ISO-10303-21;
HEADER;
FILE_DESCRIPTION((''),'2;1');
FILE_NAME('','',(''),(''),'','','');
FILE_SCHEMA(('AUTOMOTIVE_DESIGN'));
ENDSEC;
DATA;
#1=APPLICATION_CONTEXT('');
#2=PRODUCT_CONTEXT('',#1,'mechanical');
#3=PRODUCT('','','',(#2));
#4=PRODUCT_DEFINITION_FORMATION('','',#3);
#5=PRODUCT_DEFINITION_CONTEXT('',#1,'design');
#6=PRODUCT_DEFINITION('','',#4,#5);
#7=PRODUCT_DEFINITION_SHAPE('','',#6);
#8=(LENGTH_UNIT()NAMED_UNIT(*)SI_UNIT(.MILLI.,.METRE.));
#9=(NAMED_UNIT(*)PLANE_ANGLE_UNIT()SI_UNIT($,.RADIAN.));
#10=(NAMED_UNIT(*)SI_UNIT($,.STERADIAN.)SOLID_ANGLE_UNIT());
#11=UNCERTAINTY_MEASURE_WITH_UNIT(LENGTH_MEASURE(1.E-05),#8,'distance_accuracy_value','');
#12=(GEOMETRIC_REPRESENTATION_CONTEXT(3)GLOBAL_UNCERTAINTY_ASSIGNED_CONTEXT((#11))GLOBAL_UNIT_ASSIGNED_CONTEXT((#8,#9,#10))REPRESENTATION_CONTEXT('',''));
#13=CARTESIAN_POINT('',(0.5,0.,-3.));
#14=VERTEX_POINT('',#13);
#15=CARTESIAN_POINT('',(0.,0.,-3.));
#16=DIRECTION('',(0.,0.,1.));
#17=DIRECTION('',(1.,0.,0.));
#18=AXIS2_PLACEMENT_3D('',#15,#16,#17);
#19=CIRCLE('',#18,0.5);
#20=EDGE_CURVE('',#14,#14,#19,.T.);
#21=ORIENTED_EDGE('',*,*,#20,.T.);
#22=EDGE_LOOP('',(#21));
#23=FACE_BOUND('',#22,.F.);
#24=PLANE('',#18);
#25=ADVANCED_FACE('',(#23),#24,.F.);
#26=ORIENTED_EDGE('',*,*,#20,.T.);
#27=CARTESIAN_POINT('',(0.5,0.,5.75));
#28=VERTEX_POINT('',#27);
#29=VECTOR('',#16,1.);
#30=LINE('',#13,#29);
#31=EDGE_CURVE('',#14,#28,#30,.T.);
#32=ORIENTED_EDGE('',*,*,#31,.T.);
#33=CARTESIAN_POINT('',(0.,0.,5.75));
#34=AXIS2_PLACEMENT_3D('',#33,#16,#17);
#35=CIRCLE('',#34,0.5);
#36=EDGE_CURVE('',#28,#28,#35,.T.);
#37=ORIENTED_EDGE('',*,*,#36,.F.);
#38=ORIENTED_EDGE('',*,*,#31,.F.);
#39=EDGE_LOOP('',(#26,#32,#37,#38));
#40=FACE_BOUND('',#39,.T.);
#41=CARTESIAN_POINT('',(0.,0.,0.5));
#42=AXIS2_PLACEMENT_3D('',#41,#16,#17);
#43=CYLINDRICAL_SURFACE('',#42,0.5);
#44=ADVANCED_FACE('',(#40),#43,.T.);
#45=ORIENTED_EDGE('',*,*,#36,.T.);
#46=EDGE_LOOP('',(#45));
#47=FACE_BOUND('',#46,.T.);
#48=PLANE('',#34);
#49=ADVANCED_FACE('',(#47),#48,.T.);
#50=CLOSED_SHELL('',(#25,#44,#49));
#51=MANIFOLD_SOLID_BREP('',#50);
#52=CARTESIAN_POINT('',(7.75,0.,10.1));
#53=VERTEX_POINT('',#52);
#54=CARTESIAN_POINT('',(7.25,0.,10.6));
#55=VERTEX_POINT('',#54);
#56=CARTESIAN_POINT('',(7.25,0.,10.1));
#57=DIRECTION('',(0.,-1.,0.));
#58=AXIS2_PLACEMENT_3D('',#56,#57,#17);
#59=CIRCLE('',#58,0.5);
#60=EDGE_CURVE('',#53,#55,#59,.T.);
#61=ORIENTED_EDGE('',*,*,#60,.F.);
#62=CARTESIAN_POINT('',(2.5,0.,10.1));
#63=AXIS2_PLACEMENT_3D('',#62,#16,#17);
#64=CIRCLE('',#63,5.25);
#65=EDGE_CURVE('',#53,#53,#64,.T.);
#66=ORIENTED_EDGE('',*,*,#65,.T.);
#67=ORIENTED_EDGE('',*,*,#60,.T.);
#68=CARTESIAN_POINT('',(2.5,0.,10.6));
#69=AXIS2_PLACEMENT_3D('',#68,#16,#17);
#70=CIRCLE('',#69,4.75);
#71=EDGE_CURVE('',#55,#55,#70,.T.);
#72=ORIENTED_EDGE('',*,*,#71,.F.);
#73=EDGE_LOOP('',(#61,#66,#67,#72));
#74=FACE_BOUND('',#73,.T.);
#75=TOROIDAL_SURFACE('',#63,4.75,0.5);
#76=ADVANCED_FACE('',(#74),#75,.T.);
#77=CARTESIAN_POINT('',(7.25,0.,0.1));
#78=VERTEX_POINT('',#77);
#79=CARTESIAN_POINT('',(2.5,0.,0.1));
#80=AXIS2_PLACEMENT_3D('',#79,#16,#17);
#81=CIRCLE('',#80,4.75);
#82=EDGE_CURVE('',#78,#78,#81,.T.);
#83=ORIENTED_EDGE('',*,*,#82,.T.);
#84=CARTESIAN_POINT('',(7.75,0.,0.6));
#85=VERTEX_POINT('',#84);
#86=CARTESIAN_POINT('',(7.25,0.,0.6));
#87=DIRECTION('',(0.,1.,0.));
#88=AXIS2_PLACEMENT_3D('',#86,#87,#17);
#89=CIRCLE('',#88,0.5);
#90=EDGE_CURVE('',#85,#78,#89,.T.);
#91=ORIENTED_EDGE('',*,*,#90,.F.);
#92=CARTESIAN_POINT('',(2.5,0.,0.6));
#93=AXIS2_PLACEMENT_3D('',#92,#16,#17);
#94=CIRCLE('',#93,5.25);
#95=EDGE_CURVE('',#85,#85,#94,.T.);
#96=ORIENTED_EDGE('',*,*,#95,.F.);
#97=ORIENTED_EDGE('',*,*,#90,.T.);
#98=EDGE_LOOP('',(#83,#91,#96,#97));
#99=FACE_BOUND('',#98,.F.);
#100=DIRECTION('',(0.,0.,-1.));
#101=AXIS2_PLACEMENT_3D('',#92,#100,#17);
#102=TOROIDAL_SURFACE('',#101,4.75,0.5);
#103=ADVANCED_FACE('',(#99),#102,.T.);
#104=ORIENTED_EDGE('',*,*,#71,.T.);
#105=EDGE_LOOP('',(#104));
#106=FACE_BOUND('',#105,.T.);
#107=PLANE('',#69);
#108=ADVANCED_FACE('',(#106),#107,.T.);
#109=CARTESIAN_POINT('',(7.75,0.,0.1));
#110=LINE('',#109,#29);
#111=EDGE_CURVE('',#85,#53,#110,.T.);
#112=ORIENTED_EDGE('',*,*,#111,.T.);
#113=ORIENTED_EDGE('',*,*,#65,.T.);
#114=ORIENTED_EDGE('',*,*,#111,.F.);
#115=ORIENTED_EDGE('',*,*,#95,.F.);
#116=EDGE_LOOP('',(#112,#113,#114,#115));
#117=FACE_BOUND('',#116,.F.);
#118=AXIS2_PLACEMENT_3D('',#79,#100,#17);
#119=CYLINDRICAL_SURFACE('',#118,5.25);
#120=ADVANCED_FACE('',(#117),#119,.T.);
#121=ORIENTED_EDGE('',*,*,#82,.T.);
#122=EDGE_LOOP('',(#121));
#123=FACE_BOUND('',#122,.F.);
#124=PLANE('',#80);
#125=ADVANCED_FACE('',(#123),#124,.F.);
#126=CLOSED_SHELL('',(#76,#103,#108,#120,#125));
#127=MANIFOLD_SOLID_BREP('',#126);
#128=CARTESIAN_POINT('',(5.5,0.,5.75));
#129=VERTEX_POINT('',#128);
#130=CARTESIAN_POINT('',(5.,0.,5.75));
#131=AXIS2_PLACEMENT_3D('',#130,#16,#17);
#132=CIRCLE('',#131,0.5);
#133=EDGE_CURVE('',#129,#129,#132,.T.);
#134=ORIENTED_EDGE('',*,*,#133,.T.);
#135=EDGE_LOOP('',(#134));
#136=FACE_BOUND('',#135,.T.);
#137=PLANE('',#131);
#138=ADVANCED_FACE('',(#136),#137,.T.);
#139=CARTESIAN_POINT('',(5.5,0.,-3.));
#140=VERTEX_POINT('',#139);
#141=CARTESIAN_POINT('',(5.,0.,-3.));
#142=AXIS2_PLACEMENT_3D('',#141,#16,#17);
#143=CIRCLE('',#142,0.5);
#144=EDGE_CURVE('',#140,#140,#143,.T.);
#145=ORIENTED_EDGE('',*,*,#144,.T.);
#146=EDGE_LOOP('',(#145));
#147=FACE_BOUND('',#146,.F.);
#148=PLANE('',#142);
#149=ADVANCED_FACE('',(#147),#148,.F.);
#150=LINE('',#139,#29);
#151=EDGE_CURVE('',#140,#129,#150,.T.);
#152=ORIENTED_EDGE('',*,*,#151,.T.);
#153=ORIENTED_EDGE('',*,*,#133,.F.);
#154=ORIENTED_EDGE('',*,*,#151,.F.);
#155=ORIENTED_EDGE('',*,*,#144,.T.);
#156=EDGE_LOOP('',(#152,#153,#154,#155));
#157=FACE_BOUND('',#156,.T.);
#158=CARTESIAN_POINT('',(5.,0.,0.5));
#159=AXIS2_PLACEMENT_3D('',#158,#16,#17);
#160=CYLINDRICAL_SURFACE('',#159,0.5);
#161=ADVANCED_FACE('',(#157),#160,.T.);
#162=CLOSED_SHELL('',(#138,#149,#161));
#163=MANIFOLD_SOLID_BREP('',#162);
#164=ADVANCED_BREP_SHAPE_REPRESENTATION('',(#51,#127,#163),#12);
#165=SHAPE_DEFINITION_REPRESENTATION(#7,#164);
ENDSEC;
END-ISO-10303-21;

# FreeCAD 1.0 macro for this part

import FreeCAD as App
import Part
import Sketcher


def edges_at(feature, points):
    """Names of the edges that pass closest to the given points."""
    edges = feature.Shape.Edges
    near = lambda p: min(range(len(edges)), key=lambda i: edges[i].distToShape(Part.Vertex(*p))[0])
    return sorted({f"Edge{near(p) + 1}" for p in points})

doc = App.newDocument("Part")
params = doc.addObject("Spreadsheet::Sheet", "Params")
for row, (alias, value) in enumerate([
    ("sketch1_diameter", "1 mm"),
    ("pad1_length", "5.25 mm"),
    ("pad1_length2", "3.5 mm"),
    ("sketch2_diameter", "10.5 mm"),
    ("pad2_length", "10.5 mm"),
    ("fillet_radius", "0.5 mm"),
], start=1):
    params.set(f"A{row}", alias)
    params.set(f"B{row}", "=" + value)
    params.setAlias(f"B{row}", alias)

body = doc.addObject("PartDesign::Body", "Body")
body.AllowCompound = True

# Sketch on XY plane
sketch1 = body.newObject("Sketcher::SketchObject", "Sketch")
sketch1.AttachmentSupport = (doc.getObject("XY_Plane"), [""])
sketch1.MapMode = "FlatFace"
sketch1.AttachmentOffset = App.Placement(App.Vector(0, 0, 0.5), App.Rotation())
sketch1.addGeometry([
    Part.Circle(App.Vector(0, 0, 0), App.Vector(0, 0, 1), 0.5),
    Part.Circle(App.Vector(5, 0, 0), App.Vector(0, 0, 1), 0.5),
], False)
sketch1.addConstraint([
    Sketcher.Constraint("Coincident", 0, 3, -1, 1),
    Sketcher.Constraint("Equal", 0, 1),
    Sketcher.Constraint("PointOnObject", 1, 3, -1),
    Sketcher.Constraint("Diameter", 0, 1.0),
    Sketcher.Constraint("DistanceX", -1, 1, 1, 3, 5.0),
])
sketch1.setExpression("Constraints[3]", "Params.sketch1_diameter")
pad1 = body.newObject("PartDesign::Pad", "Pad")
pad1.Profile = sketch1
pad1.Type = "TwoLengths"
pad1.setExpression("Length", "Params.pad1_length")
pad1.setExpression("Length2", "Params.pad1_length2")
body2 = doc.addObject("PartDesign::Body", "Body001")

# Sketch on XY plane
sketch2 = body2.newObject("Sketcher::SketchObject", "Sketch001")
sketch2.AttachmentSupport = (doc.getObject("XY_Plane001"), [""])
sketch2.MapMode = "FlatFace"
sketch2.AttachmentOffset = App.Placement(App.Vector(0, 0, 0.1), App.Rotation())
sketch2.addGeometry(Part.Circle(App.Vector(2, 0, 0), App.Vector(0, 0, 1), 5), False)
sketch2.addConstraint([
    Sketcher.Constraint("PointOnObject", 0, 3, -1),
    Sketcher.Constraint("Diameter", 0, 10.5),
    Sketcher.Constraint("DistanceX", -1, 1, 0, 3, 2.5),
])
sketch2.setExpression("Constraints[1]", "Params.sketch2_diameter")
pad2 = body2.newObject("PartDesign::Pad", "Pad001")
pad2.Profile = sketch2
pad2.setExpression("Length", "Params.pad2_length")
doc.recompute()

fillet = body2.newObject("PartDesign::Fillet", "Fillet")
fillet.Base = (pad2, edges_at(pad2, [(-2.75, 0, 0.1), (-2.75, 0, 10.6)]))
fillet.setExpression("Radius", "Params.fillet_radius")

doc.recompute()
